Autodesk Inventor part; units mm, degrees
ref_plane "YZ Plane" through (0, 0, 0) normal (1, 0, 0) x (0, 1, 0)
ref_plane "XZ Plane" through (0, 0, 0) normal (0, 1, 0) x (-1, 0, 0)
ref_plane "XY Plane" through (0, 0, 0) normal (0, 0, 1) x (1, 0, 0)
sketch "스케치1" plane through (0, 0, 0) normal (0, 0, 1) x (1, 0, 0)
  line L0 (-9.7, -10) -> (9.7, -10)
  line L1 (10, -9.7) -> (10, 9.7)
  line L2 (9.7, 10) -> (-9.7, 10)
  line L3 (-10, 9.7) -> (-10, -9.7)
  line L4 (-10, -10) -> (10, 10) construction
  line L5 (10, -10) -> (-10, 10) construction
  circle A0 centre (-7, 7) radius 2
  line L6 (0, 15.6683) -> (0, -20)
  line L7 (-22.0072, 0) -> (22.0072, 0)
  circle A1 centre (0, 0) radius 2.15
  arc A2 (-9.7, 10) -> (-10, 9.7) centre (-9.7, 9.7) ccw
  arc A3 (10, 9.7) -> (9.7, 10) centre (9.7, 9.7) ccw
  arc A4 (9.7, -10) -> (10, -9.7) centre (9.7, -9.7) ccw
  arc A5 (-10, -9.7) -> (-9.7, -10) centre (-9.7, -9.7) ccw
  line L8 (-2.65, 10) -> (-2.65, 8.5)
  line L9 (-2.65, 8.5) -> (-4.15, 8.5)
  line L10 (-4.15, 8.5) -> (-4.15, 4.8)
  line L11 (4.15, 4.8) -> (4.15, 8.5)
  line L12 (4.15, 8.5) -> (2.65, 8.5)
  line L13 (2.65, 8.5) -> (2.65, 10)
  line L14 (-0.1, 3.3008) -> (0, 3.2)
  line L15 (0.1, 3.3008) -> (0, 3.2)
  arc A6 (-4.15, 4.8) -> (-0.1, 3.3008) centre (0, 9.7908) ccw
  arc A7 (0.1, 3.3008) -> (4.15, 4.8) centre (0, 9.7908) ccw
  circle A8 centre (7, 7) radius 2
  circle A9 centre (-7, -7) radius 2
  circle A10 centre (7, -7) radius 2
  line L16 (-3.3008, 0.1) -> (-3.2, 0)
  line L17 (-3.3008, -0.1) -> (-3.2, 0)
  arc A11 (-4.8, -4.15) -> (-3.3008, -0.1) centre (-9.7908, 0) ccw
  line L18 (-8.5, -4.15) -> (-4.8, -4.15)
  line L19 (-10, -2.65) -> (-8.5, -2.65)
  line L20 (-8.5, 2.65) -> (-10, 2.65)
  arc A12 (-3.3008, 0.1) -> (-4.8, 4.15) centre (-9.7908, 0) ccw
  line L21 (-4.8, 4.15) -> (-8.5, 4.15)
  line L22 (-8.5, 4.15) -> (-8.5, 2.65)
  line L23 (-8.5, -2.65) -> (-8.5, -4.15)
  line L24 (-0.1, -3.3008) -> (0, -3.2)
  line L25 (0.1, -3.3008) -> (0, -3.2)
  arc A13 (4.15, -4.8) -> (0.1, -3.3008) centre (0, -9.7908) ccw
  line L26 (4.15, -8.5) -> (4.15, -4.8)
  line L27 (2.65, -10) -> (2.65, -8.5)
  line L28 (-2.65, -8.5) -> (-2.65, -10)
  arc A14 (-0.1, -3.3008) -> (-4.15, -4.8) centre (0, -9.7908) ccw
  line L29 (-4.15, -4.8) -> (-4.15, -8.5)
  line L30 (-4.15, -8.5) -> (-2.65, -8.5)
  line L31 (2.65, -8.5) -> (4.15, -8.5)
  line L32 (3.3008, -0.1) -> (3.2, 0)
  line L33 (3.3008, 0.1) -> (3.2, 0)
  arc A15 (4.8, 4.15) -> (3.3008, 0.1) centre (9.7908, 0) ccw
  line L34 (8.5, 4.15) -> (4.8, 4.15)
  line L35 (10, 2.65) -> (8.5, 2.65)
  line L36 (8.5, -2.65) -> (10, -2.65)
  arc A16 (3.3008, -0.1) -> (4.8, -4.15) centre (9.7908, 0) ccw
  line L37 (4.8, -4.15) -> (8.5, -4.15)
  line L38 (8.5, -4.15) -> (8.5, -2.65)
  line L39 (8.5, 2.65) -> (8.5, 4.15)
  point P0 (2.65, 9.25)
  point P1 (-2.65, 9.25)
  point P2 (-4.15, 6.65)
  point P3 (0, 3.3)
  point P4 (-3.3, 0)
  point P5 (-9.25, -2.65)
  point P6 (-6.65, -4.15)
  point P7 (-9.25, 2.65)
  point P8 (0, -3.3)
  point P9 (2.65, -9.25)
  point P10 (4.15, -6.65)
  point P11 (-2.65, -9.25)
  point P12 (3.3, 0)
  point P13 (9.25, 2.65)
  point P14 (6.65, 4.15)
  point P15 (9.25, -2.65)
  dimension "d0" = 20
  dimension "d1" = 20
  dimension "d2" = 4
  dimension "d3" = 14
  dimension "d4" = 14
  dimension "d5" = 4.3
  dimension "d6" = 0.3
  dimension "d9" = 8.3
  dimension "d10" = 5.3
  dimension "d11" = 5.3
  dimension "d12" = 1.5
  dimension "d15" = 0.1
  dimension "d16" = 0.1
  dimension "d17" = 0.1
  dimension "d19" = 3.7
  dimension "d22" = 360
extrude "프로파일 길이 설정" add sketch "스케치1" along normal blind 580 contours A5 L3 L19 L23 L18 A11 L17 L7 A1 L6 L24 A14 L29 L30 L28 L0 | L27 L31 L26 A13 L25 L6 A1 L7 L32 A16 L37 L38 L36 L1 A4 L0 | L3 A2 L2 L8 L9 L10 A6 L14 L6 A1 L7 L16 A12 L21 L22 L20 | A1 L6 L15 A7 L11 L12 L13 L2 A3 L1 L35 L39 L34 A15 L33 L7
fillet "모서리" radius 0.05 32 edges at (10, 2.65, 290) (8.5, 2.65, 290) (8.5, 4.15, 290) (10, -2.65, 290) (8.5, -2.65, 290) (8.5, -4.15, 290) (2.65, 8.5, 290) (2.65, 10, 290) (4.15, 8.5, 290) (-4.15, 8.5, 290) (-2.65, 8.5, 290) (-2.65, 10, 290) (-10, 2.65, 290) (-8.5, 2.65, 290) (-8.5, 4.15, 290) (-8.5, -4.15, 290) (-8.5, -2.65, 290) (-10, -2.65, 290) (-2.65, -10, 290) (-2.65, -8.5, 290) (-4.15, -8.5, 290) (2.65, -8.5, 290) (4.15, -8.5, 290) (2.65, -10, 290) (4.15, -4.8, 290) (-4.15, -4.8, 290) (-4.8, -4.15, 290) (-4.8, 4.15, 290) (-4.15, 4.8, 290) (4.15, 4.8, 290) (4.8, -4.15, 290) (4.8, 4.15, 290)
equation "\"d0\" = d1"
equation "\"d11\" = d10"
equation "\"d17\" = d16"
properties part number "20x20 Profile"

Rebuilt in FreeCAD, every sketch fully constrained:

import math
import FreeCAD as App
import Part
import Sketcher
from FreeCAD import Vector
Q = App.Units.Quantity


def edges_at(feature, points):
    """Names of the edges that pass closest to the given points."""
    edges = feature.Shape.Edges
    near = lambda p: min(range(len(edges)), key=lambda i: edges[i].distToShape(Part.Vertex(*p))[0])
    return sorted({f"Edge{near(p) + 1}" for p in points})

doc = App.newDocument("Part")
body = doc.addObject("PartDesign::Body", "Body")

sketch1 = body.newObject("Sketcher::SketchObject", "Sketch")
sketch1.AttachmentSupport = (doc.getObject("XY_Plane"), [""])
sketch1.MapMode = "FlatFace"
sketch1.addGeometry(Part.ArcOfCircle(Part.Circle(Vector(-9.7, -9.7, 0), Vector(0, 0, 1), 0.3), math.radians(180), math.radians(270)), False)
sketch1.addGeometry(Part.LineSegment(Vector(-9.7, -10, 0), Vector(-2.65, -10, 0)), False)
sketch1.addGeometry(Part.LineSegment(Vector(-2.65, -10, 0), Vector(-2.65, -8.5, 0)), False)
sketch1.addGeometry(Part.LineSegment(Vector(-2.65, -8.5, 0), Vector(-4.15, -8.5, 0)), False)
sketch1.addGeometry(Part.LineSegment(Vector(-4.15, -8.5, 0), Vector(-4.15, -4.8, 0)), False)
sketch1.addGeometry(Part.ArcOfCircle(Part.Circle(Vector(0, -9.79, 0), Vector(0, 0, 1), 6.49), math.radians(91), math.radians(130)), False)
sketch1.addGeometry(Part.LineSegment(Vector(-0.1, -3.3, 0), Vector(0, -3.2, 0)), False)
sketch1.addGeometry(Part.LineSegment(Vector(0, -3.2, 0), Vector(0.1, -3.3, 0)), False)
sketch1.addGeometry(Part.ArcOfCircle(Part.Circle(Vector(0, -9.79, 0), Vector(0, 0, 1), 6.49), math.radians(50), math.radians(89)), False)
sketch1.addGeometry(Part.LineSegment(Vector(4.15, -4.8, 0), Vector(4.15, -8.5, 0)), False)
sketch1.addGeometry(Part.LineSegment(Vector(4.15, -8.5, 0), Vector(2.65, -8.5, 0)), False)
sketch1.addGeometry(Part.LineSegment(Vector(2.65, -8.5, 0), Vector(2.65, -10, 0)), False)
sketch1.addGeometry(Part.LineSegment(Vector(2.65, -10, 0), Vector(9.7, -10, 0)), False)
sketch1.addGeometry(Part.ArcOfCircle(Part.Circle(Vector(9.7, -9.7, 0), Vector(0, 0, 1), 0.3), math.radians(-90), math.radians(0)), False)
sketch1.addGeometry(Part.LineSegment(Vector(10, -9.7, 0), Vector(10, -2.65, 0)), False)
sketch1.addGeometry(Part.LineSegment(Vector(10, -2.65, 0), Vector(8.5, -2.65, 0)), False)
sketch1.addGeometry(Part.LineSegment(Vector(8.5, -2.65, 0), Vector(8.5, -4.15, 0)), False)
sketch1.addGeometry(Part.LineSegment(Vector(8.5, -4.15, 0), Vector(4.8, -4.15, 0)), False)
sketch1.addGeometry(Part.ArcOfCircle(Part.Circle(Vector(9.79, 0, 0), Vector(0, 0, 1), 6.49), math.radians(-179), math.radians(-140)), False)
sketch1.addGeometry(Part.LineSegment(Vector(3.3, -0.1, 0), Vector(3.2, 0, 0)), False)
sketch1.addGeometry(Part.LineSegment(Vector(3.2, 0, 0), Vector(3.3, 0.1, 0)), False)
sketch1.addGeometry(Part.ArcOfCircle(Part.Circle(Vector(9.79, 0, 0), Vector(0, 0, 1), 6.49), math.radians(140), math.radians(179)), False)
sketch1.addGeometry(Part.LineSegment(Vector(4.8, 4.15, 0), Vector(8.5, 4.15, 0)), False)
sketch1.addGeometry(Part.LineSegment(Vector(8.5, 4.15, 0), Vector(8.5, 2.65, 0)), False)
sketch1.addGeometry(Part.LineSegment(Vector(8.5, 2.65, 0), Vector(10, 2.65, 0)), False)
sketch1.addGeometry(Part.LineSegment(Vector(10, 2.65, 0), Vector(10, 9.7, 0)), False)
sketch1.addGeometry(Part.ArcOfCircle(Part.Circle(Vector(9.7, 9.7, 0), Vector(0, 0, 1), 0.3), math.radians(0), math.radians(90)), False)
sketch1.addGeometry(Part.LineSegment(Vector(9.7, 10, 0), Vector(2.65, 10, 0)), False)
sketch1.addGeometry(Part.LineSegment(Vector(2.65, 10, 0), Vector(2.65, 8.5, 0)), False)
sketch1.addGeometry(Part.LineSegment(Vector(2.65, 8.5, 0), Vector(4.15, 8.5, 0)), False)
sketch1.addGeometry(Part.LineSegment(Vector(4.15, 8.5, 0), Vector(4.15, 4.8, 0)), False)
sketch1.addGeometry(Part.ArcOfCircle(Part.Circle(Vector(0, 9.79, 0), Vector(0, 0, 1), 6.49), math.radians(-89), math.radians(-50)), False)
sketch1.addGeometry(Part.LineSegment(Vector(0.1, 3.3, 0), Vector(0, 3.2, 0)), False)
sketch1.addGeometry(Part.LineSegment(Vector(0, 3.2, 0), Vector(-0.1, 3.3, 0)), False)
sketch1.addGeometry(Part.ArcOfCircle(Part.Circle(Vector(0, 9.79, 0), Vector(0, 0, 1), 6.49), math.radians(-130), math.radians(-91)), False)
sketch1.addGeometry(Part.LineSegment(Vector(-4.15, 4.8, 0), Vector(-4.15, 8.5, 0)), False)
sketch1.addGeometry(Part.LineSegment(Vector(-4.15, 8.5, 0), Vector(-2.65, 8.5, 0)), False)
sketch1.addGeometry(Part.LineSegment(Vector(-2.65, 8.5, 0), Vector(-2.65, 10, 0)), False)
sketch1.addGeometry(Part.LineSegment(Vector(-2.65, 10, 0), Vector(-9.7, 10, 0)), False)
sketch1.addGeometry(Part.ArcOfCircle(Part.Circle(Vector(-9.7, 9.7, 0), Vector(0, 0, 1), 0.3), math.radians(90), math.radians(180)), False)
sketch1.addGeometry(Part.LineSegment(Vector(-10, 9.7, 0), Vector(-10, 2.65, 0)), False)
sketch1.addGeometry(Part.LineSegment(Vector(-10, 2.65, 0), Vector(-8.5, 2.65, 0)), False)
sketch1.addGeometry(Part.LineSegment(Vector(-8.5, 2.65, 0), Vector(-8.5, 4.15, 0)), False)
sketch1.addGeometry(Part.LineSegment(Vector(-8.5, 4.15, 0), Vector(-4.8, 4.15, 0)), False)
sketch1.addGeometry(Part.ArcOfCircle(Part.Circle(Vector(-9.79, 0, 0), Vector(0, 0, 1), 6.49), math.radians(1), math.radians(40)), False)
sketch1.addGeometry(Part.LineSegment(Vector(-3.3, 0.1, 0), Vector(-3.2, 0, 0)), False)
sketch1.addGeometry(Part.LineSegment(Vector(-3.2, 0, 0), Vector(-3.3, -0.1, 0)), False)
sketch1.addGeometry(Part.ArcOfCircle(Part.Circle(Vector(-9.79, 0, 0), Vector(0, 0, 1), 6.49), math.radians(-40), math.radians(-1)), False)
sketch1.addGeometry(Part.LineSegment(Vector(-4.8, -4.15, 0), Vector(-8.5, -4.15, 0)), False)
sketch1.addGeometry(Part.LineSegment(Vector(-8.5, -4.15, 0), Vector(-8.5, -2.65, 0)), False)
sketch1.addGeometry(Part.LineSegment(Vector(-8.5, -2.65, 0), Vector(-10, -2.65, 0)), False)
sketch1.addGeometry(Part.LineSegment(Vector(-10, -2.65, 0), Vector(-10, -9.7, 0)), False)
sketch1.addGeometry(Part.Circle(Vector(0, 0, 0), Vector(0, 0, 1), 2.15), False)
sketch1.addGeometry(Part.Circle(Vector(-7, -7, 0), Vector(0, 0, 1), 2), False)
sketch1.addGeometry(Part.Circle(Vector(-7, 7, 0), Vector(0, 0, 1), 2), False)
sketch1.addGeometry(Part.Circle(Vector(7, -7, 0), Vector(0, 0, 1), 2), False)
sketch1.addGeometry(Part.Circle(Vector(7, 7, 0), Vector(0, 0, 1), 2), False)
sketch1.addConstraint(Sketcher.Constraint("Tangent", 0, 2, 1, 1))
sketch1.addConstraint(Sketcher.Constraint("Coincident", 1, 2, 2, 1))
sketch1.addConstraint(Sketcher.Constraint("Coincident", 2, 2, 3, 1))
sketch1.addConstraint(Sketcher.Constraint("Coincident", 3, 2, 4, 1))
sketch1.addConstraint(Sketcher.Constraint("Coincident", 4, 2, 5, 2))
sketch1.addConstraint(Sketcher.Constraint("Coincident", 5, 1, 6, 1))
sketch1.addConstraint(Sketcher.Constraint("Coincident", 6, 2, 7, 1))
sketch1.addConstraint(Sketcher.Constraint("Coincident", 7, 2, 8, 2))
sketch1.addConstraint(Sketcher.Constraint("Coincident", 8, 1, 9, 1))
sketch1.addConstraint(Sketcher.Constraint("Coincident", 9, 2, 10, 1))
sketch1.addConstraint(Sketcher.Constraint("Coincident", 10, 2, 11, 1))
sketch1.addConstraint(Sketcher.Constraint("Coincident", 11, 2, 12, 1))
sketch1.addConstraint(Sketcher.Constraint("Tangent", 12, 2, 13, 1))
sketch1.addConstraint(Sketcher.Constraint("Tangent", 13, 2, 14, 1))
sketch1.addConstraint(Sketcher.Constraint("Coincident", 14, 2, 15, 1))
sketch1.addConstraint(Sketcher.Constraint("Coincident", 15, 2, 16, 1))
sketch1.addConstraint(Sketcher.Constraint("Coincident", 16, 2, 17, 1))
sketch1.addConstraint(Sketcher.Constraint("Coincident", 17, 2, 18, 2))
sketch1.addConstraint(Sketcher.Constraint("Coincident", 18, 1, 19, 1))
sketch1.addConstraint(Sketcher.Constraint("Coincident", 19, 2, 20, 1))
sketch1.addConstraint(Sketcher.Constraint("Coincident", 20, 2, 21, 2))
sketch1.addConstraint(Sketcher.Constraint("Coincident", 21, 1, 22, 1))
sketch1.addConstraint(Sketcher.Constraint("Coincident", 22, 2, 23, 1))
sketch1.addConstraint(Sketcher.Constraint("Coincident", 23, 2, 24, 1))
sketch1.addConstraint(Sketcher.Constraint("Coincident", 24, 2, 25, 1))
sketch1.addConstraint(Sketcher.Constraint("Tangent", 25, 2, 26, 1))
sketch1.addConstraint(Sketcher.Constraint("Tangent", 26, 2, 27, 1))
sketch1.addConstraint(Sketcher.Constraint("Coincident", 27, 2, 28, 1))
sketch1.addConstraint(Sketcher.Constraint("Coincident", 28, 2, 29, 1))
sketch1.addConstraint(Sketcher.Constraint("Coincident", 29, 2, 30, 1))
sketch1.addConstraint(Sketcher.Constraint("Coincident", 30, 2, 31, 2))
sketch1.addConstraint(Sketcher.Constraint("Coincident", 31, 1, 32, 1))
sketch1.addConstraint(Sketcher.Constraint("Coincident", 32, 2, 33, 1))
sketch1.addConstraint(Sketcher.Constraint("Coincident", 33, 2, 34, 2))
sketch1.addConstraint(Sketcher.Constraint("Coincident", 34, 1, 35, 1))
sketch1.addConstraint(Sketcher.Constraint("Coincident", 35, 2, 36, 1))
sketch1.addConstraint(Sketcher.Constraint("Coincident", 36, 2, 37, 1))
sketch1.addConstraint(Sketcher.Constraint("Coincident", 37, 2, 38, 1))
sketch1.addConstraint(Sketcher.Constraint("Tangent", 38, 2, 39, 1))
sketch1.addConstraint(Sketcher.Constraint("Tangent", 39, 2, 40, 1))
sketch1.addConstraint(Sketcher.Constraint("Coincident", 40, 2, 41, 1))
sketch1.addConstraint(Sketcher.Constraint("Coincident", 41, 2, 42, 1))
sketch1.addConstraint(Sketcher.Constraint("Coincident", 42, 2, 43, 1))
sketch1.addConstraint(Sketcher.Constraint("Coincident", 43, 2, 44, 2))
sketch1.addConstraint(Sketcher.Constraint("Coincident", 44, 1, 45, 1))
sketch1.addConstraint(Sketcher.Constraint("Coincident", 45, 2, 46, 1))
sketch1.addConstraint(Sketcher.Constraint("Coincident", 46, 2, 47, 2))
sketch1.addConstraint(Sketcher.Constraint("Coincident", 47, 1, 48, 1))
sketch1.addConstraint(Sketcher.Constraint("Coincident", 48, 2, 49, 1))
sketch1.addConstraint(Sketcher.Constraint("Coincident", 49, 2, 50, 1))
sketch1.addConstraint(Sketcher.Constraint("Coincident", 50, 2, 51, 1))
sketch1.addConstraint(Sketcher.Constraint("Tangent", 51, 2, 0, 1))
sketch1.addConstraint(Sketcher.Constraint("Horizontal", 1))
sketch1.addConstraint(Sketcher.Constraint("Vertical", 2))
sketch1.addConstraint(Sketcher.Constraint("Horizontal", 3))
sketch1.addConstraint(Sketcher.Constraint("Vertical", 4))
sketch1.addConstraint(Sketcher.Constraint("Vertical", 9))
sketch1.addConstraint(Sketcher.Constraint("Horizontal", 10))
sketch1.addConstraint(Sketcher.Constraint("Vertical", 11))
sketch1.addConstraint(Sketcher.Constraint("Horizontal", 12))
sketch1.addConstraint(Sketcher.Constraint("Vertical", 14))
sketch1.addConstraint(Sketcher.Constraint("Horizontal", 15))
sketch1.addConstraint(Sketcher.Constraint("Vertical", 16))
sketch1.addConstraint(Sketcher.Constraint("Horizontal", 17))
sketch1.addConstraint(Sketcher.Constraint("Horizontal", 22))
sketch1.addConstraint(Sketcher.Constraint("Vertical", 23))
sketch1.addConstraint(Sketcher.Constraint("Horizontal", 24))
sketch1.addConstraint(Sketcher.Constraint("Vertical", 25))
sketch1.addConstraint(Sketcher.Constraint("Horizontal", 27))
sketch1.addConstraint(Sketcher.Constraint("Vertical", 28))
sketch1.addConstraint(Sketcher.Constraint("Horizontal", 29))
sketch1.addConstraint(Sketcher.Constraint("Vertical", 30))
sketch1.addConstraint(Sketcher.Constraint("Vertical", 35))
sketch1.addConstraint(Sketcher.Constraint("Horizontal", 36))
sketch1.addConstraint(Sketcher.Constraint("Vertical", 37))
sketch1.addConstraint(Sketcher.Constraint("Horizontal", 38))
sketch1.addConstraint(Sketcher.Constraint("Vertical", 40))
sketch1.addConstraint(Sketcher.Constraint("Horizontal", 41))
sketch1.addConstraint(Sketcher.Constraint("Vertical", 42))
sketch1.addConstraint(Sketcher.Constraint("Horizontal", 43))
sketch1.addConstraint(Sketcher.Constraint("Horizontal", 48))
sketch1.addConstraint(Sketcher.Constraint("Vertical", 49))
sketch1.addConstraint(Sketcher.Constraint("Horizontal", 50))
sketch1.addConstraint(Sketcher.Constraint("Vertical", 51))
sketch1.addConstraint(Sketcher.Constraint("Coincident", 52, 3, -1, 1))
sketch1.addConstraint(Sketcher.Constraint("Coincident", 8, 3, 5, 3))
sketch1.addConstraint(Sketcher.Constraint("Coincident", 21, 3, 18, 3))
sketch1.addConstraint(Sketcher.Constraint("Coincident", 34, 3, 31, 3))
sketch1.addConstraint(Sketcher.Constraint("Coincident", 47, 3, 44, 3))
sketch1.addConstraint(Sketcher.Constraint("Equal", 5, 8))
sketch1.addConstraint(Sketcher.Constraint("Equal", 0, 13))
sketch1.addConstraint(Sketcher.Constraint("Equal", 8, 18))
sketch1.addConstraint(Sketcher.Constraint("Equal", 18, 21))
sketch1.addConstraint(Sketcher.Constraint("Equal", 13, 26))
sketch1.addConstraint(Sketcher.Constraint("Equal", 21, 31))
sketch1.addConstraint(Sketcher.Constraint("Equal", 31, 34))
sketch1.addConstraint(Sketcher.Constraint("Equal", 26, 39))
sketch1.addConstraint(Sketcher.Constraint("Equal", 34, 44))
sketch1.addConstraint(Sketcher.Constraint("Equal", 44, 47))
sketch1.addConstraint(Sketcher.Constraint("Equal", 53, 54))
sketch1.addConstraint(Sketcher.Constraint("Equal", 54, 55))
sketch1.addConstraint(Sketcher.Constraint("Equal", 55, 56))
sketch1.addConstraint(Sketcher.Constraint("Symmetric", 0, 3, 26, 3, -1, 1))
sketch1.addConstraint(Sketcher.Constraint("Symmetric", 5, 3, 31, 3, -1, 1))
sketch1.addConstraint(Sketcher.Constraint("Symmetric", 13, 3, 39, 3, -1, 1))
sketch1.addConstraint(Sketcher.Constraint("Symmetric", 18, 3, 44, 3, -1, 1))
sketch1.addConstraint(Sketcher.Constraint("Symmetric", 54, 3, 55, 3, -1, 1))
sketch1.addConstraint(Sketcher.Constraint("Symmetric", 53, 3, 56, 3, -1, 1))
sketch1.addConstraint(Sketcher.Constraint("Symmetric", 2, 2, 28, 2, -1, 1))
sketch1.addConstraint(Sketcher.Constraint("Symmetric", 6, 2, 32, 2, -1, 1))
sketch1.addConstraint(Sketcher.Constraint("Symmetric", 9, 2, 35, 2, -1, 1))
sketch1.addConstraint(Sketcher.Constraint("Symmetric", 15, 2, 41, 2, -1, 1))
sketch1.addConstraint(Sketcher.Constraint("Symmetric", 19, 2, 45, 2, -1, 1))
sketch1.addConstraint(Sketcher.Constraint("Symmetric", 22, 2, 48, 2, -1, 1))
sketch1.addConstraint(Sketcher.Constraint("Symmetric", 0, 3, 13, 3, -2))
sketch1.addConstraint(Sketcher.Constraint("Symmetric", 53, 3, 55, 3, -2))
sketch1.addConstraint(Sketcher.Constraint("Symmetric", 5, 1, 7, 2, -2))
sketch1.addConstraint(Sketcher.Constraint("Symmetric", 3, 2, 9, 2, -2))
sketch1.addConstraint(Sketcher.Constraint("Symmetric", 23, 2, 41, 2, -2))
sketch1.addConstraint(Sketcher.Constraint("Symmetric", 21, 1, 43, 2, -2))
sketch1.addConstraint(Sketcher.Constraint("PointOnObject", 6, 2, -2))
sketch1.addConstraint(Sketcher.Constraint("PointOnObject", 19, 2, -1))
sketch1.addConstraint(Sketcher.Constraint("Perpendicular", 6, 19))
sketch1.addConstraint(Sketcher.Constraint("Perpendicular", 7, 20))
sketch1.addConstraint(Sketcher.Constraint("Perpendicular", 19, 32))
sketch1.addConstraint(Sketcher.Constraint("Perpendicular", 20, 33))
sketch1.addConstraint(Sketcher.Constraint("Perpendicular", 32, 45))
sketch1.addConstraint(Sketcher.Constraint("Perpendicular", 33, 46))
sketch1.addConstraint(Sketcher.Constraint("Horizontal", 30, 2, 34, 1))
sketch1.addConstraint(Sketcher.Constraint("Horizontal", 17, 2, 47, 1))
sketch1.addConstraint(Sketcher.Constraint("Horizontal", 15, 2, 49, 2))
sketch1.addConstraint(Sketcher.Constraint("Vertical", 11, 2, 27, 2))
sketch1.addConstraint(Sketcher.Constraint("Vertical", 2, 2, 36, 2))
sketch1.addConstraint(Sketcher.Constraint("Equal", 10, 15))
sketch1.addConstraint(Sketcher.Constraint("Equal", 50, 2))
sketch1.addConstraint(Sketcher.Constraint("Equal", 48, 4))
sketch1.addConstraint(Sketcher.Constraint("Equal", 38, 14))
sketch1.addConstraint(Sketcher.Constraint("Equal", 11, 16))
sketch1.addConstraint(Sketcher.Constraint("Equal", 7, 19))
sketch1.addConstraint(Sketcher.Constraint("Diameter", 53, Q("4 mm")))
sketch1.addConstraint(Sketcher.Constraint("Diameter", 52, Q("4.3 mm")))
sketch1.addConstraint(Sketcher.Constraint("Radius", 0, Q("0.3 mm")))
sketch1.addConstraint(Sketcher.Constraint("DistanceX", 3, 2, 3, 1, Q("1.5 mm")))
sketch1.addConstraint(Sketcher.Constraint("DistanceX", 17, 2, 17, 1, Q("3.7 mm")))
sketch1.addConstraint(Sketcher.Constraint("DistanceX", 5, 1, -1, 1, Q("0.1 mm")))
sketch1.addConstraint(Sketcher.Constraint("DistanceX", 53, 3, -1, 1, Q("7 mm")))
sketch1.addConstraint(Sketcher.Constraint("DistanceY", 53, 3, -1, 1, Q("7 mm")))
sketch1.addConstraint(Sketcher.Constraint("DistanceY", 0, 2, -1, 1, Q("10 mm")))
sketch1.addConstraint(Sketcher.Constraint("DistanceX", -1, 1, 13, 2, Q("10 mm")))
sketch1.addConstraint(Sketcher.Constraint("DistanceX", 1, 1, 1, 2, Q("7.05 mm")))
sketch1.addConstraint(Sketcher.Constraint("DistanceY", 6, 2, -1, 1, Q("3.2 mm")))
sketch1.addConstraint(Sketcher.Constraint("Radius", 5, Q("6.4908 mm")))
pad1 = body.newObject("PartDesign::Pad", "Pad")
pad1.Profile = sketch1
pad1.Length = 580
doc.recompute()

fillet = body.newObject("PartDesign::Fillet", "Fillet")
fillet.Base = (pad1, edges_at(pad1, [
    (10, 2.65, 290),
    (8.5, 2.65, 290),
    (8.5, 4.15, 290),
    (10, -2.65, 290),
    (8.5, -2.65, 290),
    (8.5, -4.15, 290),
    (2.65, 8.5, 290),
    (2.65, 10, 290),
    (4.15, 8.5, 290),
    (-4.15, 8.5, 290),
    (-2.65, 8.5, 290),
    (-2.65, 10, 290),
    (-10, 2.65, 290),
    (-8.5, 2.65, 290),
    (-8.5, 4.15, 290),
    (-8.5, -4.15, 290),
    (-8.5, -2.65, 290),
    (-10, -2.65, 290),
    (-2.65, -10, 290),
    (-2.65, -8.5, 290),
    (-4.15, -8.5, 290),
    (2.65, -8.5, 290),
    (4.15, -8.5, 290),
    (2.65, -10, 290),
    (4.15, -4.8, 290),
    (-4.15, -4.8, 290),
    (-4.8, -4.15, 290),
    (-4.8, 4.15, 290),
    (-4.15, 4.8, 290),
    (4.15, 4.8, 290),
    (4.8, -4.15, 290),
    (4.8, 4.15, 290),
]))
fillet.Radius = 0.05

doc.recompute()
